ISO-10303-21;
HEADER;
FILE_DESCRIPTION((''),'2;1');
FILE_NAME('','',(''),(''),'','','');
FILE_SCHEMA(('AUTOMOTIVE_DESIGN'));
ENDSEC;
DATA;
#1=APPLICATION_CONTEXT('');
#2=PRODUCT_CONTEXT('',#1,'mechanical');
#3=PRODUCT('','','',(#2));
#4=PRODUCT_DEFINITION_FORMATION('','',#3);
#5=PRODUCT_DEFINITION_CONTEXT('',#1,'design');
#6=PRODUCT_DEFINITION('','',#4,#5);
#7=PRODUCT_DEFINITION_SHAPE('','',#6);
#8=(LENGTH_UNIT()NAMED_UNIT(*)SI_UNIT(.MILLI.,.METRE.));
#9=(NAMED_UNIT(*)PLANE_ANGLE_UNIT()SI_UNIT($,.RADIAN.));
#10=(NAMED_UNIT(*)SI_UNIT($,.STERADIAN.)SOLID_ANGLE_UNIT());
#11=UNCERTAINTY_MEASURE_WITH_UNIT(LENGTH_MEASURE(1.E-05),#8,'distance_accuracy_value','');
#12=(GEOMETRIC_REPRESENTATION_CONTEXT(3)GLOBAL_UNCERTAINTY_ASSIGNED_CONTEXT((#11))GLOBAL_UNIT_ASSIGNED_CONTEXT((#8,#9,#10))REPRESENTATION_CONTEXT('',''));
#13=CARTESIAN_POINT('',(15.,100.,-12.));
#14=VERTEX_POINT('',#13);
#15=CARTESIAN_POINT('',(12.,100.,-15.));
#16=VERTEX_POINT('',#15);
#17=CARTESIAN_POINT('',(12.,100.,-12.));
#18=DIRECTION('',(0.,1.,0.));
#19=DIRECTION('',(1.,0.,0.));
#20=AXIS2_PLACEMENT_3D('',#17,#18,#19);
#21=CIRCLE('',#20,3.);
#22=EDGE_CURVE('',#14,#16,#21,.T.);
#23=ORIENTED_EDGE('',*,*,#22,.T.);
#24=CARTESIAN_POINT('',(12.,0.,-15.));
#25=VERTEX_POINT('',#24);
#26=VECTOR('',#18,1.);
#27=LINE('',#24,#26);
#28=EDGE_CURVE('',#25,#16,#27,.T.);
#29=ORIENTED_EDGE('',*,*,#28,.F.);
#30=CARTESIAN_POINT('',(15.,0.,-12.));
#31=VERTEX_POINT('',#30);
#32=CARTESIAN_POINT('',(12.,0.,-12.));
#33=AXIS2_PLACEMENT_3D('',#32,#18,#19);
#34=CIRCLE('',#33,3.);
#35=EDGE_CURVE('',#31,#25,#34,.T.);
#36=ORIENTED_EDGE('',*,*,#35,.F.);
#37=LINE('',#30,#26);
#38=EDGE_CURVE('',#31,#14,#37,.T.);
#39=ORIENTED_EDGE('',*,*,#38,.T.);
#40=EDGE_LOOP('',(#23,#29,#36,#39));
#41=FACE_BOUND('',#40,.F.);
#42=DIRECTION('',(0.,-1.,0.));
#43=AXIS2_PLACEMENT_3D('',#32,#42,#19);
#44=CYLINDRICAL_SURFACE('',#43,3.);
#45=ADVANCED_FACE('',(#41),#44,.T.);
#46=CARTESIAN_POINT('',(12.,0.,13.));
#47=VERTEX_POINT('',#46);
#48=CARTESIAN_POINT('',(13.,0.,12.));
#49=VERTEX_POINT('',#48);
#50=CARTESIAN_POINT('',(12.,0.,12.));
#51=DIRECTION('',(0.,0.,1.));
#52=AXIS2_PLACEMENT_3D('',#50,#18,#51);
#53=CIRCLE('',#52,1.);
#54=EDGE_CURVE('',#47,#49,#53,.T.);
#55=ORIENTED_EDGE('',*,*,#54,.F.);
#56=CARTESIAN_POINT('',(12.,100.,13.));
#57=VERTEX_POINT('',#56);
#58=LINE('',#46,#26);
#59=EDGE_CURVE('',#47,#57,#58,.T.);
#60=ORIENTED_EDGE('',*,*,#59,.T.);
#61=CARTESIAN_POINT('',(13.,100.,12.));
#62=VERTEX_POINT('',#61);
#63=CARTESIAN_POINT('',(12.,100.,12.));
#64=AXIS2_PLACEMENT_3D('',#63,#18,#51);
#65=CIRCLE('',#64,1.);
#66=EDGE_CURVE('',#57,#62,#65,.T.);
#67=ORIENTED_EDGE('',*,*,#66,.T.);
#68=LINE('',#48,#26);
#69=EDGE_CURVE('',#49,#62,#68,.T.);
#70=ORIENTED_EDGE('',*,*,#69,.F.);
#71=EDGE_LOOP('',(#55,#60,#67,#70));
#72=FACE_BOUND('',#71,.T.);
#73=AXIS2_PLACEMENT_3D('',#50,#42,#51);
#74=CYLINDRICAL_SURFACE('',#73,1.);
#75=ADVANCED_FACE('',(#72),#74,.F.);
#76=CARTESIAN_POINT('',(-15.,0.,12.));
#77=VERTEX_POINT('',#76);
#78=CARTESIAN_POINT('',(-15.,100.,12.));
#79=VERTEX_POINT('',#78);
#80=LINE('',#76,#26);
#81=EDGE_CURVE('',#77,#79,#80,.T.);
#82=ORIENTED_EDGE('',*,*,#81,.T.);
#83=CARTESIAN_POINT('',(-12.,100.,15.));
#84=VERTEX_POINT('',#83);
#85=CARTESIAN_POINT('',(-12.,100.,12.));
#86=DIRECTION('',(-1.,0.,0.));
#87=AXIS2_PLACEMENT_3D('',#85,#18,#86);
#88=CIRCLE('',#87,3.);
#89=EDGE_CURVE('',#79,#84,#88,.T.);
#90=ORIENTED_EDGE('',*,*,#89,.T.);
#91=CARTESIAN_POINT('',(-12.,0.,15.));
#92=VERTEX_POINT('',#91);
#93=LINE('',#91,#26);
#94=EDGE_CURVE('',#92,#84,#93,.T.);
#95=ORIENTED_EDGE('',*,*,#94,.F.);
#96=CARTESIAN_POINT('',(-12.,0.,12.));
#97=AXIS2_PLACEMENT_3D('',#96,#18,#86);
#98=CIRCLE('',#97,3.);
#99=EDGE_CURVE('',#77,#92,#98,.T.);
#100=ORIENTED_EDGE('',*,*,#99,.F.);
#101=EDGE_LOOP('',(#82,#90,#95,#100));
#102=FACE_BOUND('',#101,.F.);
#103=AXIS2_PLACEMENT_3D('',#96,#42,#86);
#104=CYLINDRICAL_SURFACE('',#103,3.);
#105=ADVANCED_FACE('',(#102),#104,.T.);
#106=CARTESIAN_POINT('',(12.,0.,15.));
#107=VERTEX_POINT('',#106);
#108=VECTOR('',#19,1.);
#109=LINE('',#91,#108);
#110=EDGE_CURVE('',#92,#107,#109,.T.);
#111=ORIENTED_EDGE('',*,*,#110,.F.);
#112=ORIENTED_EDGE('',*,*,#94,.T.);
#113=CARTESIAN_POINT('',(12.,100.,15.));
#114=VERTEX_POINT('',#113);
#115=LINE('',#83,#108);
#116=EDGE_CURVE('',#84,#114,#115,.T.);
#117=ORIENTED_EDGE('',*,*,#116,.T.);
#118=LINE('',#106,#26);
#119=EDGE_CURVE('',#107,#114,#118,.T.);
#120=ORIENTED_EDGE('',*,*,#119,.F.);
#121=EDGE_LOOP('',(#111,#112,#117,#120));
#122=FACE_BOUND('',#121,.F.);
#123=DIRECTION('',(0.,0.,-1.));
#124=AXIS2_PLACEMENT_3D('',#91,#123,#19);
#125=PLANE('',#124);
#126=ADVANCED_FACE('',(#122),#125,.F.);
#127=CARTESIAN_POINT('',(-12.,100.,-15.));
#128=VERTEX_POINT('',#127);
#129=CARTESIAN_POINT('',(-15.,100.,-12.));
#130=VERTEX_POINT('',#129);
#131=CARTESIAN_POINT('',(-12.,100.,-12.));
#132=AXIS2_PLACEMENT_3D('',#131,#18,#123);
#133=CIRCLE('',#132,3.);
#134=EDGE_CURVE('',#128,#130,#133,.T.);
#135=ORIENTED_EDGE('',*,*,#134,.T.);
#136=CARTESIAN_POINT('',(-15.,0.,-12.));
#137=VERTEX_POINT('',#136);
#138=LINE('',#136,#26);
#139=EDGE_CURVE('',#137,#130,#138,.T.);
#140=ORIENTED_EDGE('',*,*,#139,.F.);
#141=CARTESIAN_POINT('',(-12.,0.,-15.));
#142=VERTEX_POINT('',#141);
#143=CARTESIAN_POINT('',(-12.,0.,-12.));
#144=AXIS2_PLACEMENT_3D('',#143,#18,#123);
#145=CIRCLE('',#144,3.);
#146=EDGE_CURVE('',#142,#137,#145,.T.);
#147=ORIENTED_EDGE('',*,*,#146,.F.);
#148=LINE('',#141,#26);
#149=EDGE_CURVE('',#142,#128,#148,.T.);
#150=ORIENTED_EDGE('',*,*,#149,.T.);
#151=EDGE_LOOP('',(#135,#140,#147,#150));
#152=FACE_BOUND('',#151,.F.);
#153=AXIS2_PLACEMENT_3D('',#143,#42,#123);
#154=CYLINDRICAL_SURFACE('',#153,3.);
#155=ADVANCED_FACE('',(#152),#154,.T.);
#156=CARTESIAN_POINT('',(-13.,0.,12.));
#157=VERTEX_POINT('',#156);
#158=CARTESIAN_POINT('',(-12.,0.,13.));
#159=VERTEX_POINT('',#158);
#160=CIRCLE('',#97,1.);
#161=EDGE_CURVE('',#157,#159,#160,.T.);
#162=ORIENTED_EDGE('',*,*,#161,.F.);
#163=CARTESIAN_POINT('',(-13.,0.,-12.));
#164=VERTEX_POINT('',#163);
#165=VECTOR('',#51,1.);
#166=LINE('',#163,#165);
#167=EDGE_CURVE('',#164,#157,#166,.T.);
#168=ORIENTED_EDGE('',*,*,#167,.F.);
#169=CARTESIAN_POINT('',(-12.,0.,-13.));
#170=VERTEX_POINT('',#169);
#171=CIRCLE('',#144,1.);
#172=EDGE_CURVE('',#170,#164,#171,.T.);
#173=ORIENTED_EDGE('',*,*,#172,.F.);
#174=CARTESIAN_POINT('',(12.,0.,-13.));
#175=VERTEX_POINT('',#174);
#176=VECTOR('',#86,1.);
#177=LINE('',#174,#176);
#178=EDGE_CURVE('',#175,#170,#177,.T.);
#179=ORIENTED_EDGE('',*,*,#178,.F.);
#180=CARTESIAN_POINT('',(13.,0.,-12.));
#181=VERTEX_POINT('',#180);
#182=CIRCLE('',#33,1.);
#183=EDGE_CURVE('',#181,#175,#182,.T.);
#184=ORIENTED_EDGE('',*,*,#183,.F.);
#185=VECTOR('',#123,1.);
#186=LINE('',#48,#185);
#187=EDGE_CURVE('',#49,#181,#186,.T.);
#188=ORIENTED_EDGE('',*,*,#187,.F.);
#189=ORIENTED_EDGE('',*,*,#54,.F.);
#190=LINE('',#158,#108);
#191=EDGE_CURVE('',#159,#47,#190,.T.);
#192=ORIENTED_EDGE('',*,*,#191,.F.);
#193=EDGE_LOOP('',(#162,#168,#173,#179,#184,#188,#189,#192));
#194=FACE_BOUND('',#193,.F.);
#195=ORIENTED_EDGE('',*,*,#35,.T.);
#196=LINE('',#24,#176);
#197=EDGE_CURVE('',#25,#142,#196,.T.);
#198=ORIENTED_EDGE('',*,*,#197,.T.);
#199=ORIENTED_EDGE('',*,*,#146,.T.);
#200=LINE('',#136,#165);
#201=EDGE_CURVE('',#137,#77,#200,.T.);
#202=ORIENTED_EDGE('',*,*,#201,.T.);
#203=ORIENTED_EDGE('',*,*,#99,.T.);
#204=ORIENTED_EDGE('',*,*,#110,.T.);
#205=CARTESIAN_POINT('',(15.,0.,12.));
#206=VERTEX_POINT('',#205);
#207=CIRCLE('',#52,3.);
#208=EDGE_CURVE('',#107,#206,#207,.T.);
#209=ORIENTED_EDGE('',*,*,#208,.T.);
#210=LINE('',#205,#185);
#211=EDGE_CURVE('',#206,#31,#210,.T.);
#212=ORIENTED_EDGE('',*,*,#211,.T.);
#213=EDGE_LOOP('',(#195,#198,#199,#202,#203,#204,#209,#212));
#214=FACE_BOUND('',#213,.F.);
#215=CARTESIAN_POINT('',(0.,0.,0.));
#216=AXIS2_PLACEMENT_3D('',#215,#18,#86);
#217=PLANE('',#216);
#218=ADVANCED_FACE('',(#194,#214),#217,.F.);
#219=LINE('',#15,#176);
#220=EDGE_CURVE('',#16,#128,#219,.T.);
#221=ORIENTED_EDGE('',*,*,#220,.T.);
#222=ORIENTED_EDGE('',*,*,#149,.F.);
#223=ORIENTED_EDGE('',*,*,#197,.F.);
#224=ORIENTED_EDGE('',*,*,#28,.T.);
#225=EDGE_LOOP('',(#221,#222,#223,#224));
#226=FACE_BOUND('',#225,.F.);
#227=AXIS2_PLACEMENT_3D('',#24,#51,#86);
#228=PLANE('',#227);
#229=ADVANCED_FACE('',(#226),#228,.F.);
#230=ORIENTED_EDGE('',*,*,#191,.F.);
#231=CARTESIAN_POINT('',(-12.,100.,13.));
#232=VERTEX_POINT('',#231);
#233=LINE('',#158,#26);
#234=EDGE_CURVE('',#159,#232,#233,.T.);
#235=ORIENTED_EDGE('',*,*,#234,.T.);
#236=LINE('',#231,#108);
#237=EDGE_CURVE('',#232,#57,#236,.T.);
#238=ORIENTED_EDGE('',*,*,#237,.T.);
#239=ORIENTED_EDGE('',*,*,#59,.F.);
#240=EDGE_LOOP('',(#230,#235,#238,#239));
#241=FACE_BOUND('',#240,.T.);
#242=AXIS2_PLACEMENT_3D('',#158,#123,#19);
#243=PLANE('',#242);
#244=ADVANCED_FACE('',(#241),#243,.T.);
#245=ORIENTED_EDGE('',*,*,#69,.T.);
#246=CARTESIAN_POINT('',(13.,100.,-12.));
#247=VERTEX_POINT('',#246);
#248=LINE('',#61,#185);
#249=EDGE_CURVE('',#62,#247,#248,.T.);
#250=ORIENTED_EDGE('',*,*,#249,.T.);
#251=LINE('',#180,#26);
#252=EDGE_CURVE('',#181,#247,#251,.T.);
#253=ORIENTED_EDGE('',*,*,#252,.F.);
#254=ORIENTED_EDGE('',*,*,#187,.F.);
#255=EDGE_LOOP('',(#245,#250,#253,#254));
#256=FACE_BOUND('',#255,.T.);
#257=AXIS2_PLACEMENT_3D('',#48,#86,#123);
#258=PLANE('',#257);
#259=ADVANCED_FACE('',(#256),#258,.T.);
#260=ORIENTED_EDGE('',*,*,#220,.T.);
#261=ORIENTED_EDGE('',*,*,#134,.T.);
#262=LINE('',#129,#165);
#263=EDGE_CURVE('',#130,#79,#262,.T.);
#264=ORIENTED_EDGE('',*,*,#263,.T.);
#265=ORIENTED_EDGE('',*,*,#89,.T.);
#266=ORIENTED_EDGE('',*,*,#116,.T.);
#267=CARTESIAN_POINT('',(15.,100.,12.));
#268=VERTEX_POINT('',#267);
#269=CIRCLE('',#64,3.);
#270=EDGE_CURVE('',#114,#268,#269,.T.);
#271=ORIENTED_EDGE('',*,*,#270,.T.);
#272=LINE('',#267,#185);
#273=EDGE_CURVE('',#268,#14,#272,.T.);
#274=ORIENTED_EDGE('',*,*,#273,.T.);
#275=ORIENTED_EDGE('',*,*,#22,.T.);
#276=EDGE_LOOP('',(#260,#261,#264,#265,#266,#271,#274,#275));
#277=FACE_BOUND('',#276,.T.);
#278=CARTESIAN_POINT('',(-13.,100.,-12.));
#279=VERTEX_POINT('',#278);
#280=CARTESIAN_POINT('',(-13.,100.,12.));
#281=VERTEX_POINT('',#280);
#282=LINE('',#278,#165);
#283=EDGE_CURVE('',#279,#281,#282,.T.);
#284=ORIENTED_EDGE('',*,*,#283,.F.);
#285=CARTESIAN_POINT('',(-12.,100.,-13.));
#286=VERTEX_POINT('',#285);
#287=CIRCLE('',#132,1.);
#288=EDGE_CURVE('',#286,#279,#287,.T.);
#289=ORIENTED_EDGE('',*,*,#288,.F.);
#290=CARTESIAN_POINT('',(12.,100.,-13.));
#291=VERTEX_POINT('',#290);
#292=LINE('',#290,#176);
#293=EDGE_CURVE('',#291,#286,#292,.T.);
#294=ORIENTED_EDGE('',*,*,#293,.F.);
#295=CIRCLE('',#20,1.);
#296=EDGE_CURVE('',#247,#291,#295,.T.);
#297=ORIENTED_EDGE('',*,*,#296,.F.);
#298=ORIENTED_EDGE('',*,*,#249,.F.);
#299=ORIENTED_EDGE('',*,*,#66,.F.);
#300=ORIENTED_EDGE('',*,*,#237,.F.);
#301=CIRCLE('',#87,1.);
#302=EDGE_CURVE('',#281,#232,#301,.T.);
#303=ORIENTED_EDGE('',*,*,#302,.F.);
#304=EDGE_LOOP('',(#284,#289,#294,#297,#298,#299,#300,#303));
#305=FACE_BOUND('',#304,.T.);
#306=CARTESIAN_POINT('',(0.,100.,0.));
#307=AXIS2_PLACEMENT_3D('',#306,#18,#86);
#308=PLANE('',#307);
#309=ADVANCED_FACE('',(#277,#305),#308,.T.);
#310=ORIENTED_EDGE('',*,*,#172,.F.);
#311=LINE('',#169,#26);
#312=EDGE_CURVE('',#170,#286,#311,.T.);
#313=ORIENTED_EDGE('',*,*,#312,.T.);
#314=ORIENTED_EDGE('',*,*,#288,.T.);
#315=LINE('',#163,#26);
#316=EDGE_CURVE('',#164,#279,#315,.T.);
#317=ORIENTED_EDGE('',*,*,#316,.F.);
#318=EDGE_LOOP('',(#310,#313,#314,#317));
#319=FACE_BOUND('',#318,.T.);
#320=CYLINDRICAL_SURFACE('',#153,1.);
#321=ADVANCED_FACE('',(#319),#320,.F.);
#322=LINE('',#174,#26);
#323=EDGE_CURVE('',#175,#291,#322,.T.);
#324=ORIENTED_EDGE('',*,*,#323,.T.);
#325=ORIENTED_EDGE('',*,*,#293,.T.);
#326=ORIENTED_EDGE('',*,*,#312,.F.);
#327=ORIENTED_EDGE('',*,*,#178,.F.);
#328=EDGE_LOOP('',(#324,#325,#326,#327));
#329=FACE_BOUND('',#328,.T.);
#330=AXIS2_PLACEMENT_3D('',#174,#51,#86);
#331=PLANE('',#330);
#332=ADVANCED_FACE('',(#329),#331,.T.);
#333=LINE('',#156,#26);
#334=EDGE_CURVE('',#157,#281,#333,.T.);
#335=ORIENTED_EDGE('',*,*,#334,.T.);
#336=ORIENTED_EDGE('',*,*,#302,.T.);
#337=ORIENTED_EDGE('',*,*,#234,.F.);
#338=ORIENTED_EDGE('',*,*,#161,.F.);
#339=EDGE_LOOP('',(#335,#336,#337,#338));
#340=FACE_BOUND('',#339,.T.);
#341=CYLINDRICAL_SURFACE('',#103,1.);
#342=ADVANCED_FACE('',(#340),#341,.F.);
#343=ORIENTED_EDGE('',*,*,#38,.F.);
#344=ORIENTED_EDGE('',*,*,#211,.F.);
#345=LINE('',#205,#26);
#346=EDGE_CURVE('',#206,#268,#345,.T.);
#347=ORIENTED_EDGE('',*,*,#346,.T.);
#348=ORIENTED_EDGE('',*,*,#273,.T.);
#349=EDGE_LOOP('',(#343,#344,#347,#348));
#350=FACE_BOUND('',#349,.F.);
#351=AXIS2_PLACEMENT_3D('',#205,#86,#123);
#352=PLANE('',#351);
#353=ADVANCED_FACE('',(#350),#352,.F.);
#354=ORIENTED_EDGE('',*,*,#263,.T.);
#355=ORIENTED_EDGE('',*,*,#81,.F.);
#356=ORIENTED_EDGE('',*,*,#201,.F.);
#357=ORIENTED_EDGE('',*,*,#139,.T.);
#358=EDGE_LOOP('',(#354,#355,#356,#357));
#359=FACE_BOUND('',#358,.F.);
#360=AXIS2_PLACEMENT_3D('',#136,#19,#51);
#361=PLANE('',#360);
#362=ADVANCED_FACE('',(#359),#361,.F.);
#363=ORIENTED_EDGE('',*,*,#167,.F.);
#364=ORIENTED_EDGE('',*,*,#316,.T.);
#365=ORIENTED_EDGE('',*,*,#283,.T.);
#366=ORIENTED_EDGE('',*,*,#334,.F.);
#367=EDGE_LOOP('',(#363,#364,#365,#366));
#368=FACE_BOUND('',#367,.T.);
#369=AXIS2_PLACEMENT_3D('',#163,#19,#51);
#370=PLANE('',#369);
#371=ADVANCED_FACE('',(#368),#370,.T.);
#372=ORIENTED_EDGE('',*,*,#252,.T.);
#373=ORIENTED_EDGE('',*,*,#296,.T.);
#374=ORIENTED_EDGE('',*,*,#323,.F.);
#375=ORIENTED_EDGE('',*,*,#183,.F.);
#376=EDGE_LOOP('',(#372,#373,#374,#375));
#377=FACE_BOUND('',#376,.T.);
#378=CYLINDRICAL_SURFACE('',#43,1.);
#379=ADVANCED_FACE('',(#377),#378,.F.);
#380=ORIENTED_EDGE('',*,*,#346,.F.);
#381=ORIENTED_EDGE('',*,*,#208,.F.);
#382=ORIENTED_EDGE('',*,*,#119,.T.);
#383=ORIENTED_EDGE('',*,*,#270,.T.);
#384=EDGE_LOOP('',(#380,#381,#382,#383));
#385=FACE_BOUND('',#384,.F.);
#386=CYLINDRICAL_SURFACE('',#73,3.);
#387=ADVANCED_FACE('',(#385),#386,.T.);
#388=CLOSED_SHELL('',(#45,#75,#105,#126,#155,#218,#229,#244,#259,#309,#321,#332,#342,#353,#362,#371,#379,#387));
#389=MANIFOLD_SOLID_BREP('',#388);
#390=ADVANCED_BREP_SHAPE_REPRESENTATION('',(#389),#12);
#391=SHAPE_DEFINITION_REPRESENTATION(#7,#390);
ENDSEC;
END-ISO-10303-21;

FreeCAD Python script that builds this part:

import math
import FreeCAD as App
import Part
import Sketcher

V = App.Vector

doc = App.newDocument("Part")
params = doc.addObject("Spreadsheet::Sheet", "Params")
for row, (alias, value) in enumerate([
    ("sketch1_radius", "1 mm"),
    ("sketch1_radius2", "3 mm"),
    ("sketch1_width", "24 mm"),
    ("pad1_length", "100 mm"),
], start=1):
    params.set(f"A{row}", alias)
    params.set(f"B{row}", "=" + value)
    params.setAlias(f"B{row}", alias)

body = doc.addObject("PartDesign::Body", "Body")

sketch1 = doc.addObject("Sketcher::SketchObject", "Sketch")
body.addObject(sketch1)
sketch1.AttachmentSupport = (doc.XZ_Plane, [""])
sketch1.MapMode = "FlatFace"
sketch1.addGeometry(Part.ArcOfCircle(Part.Circle(V(12, -12, 0), V(0, 0, 1), 3), math.radians(-90), math.radians(0)), False)
sketch1.addGeometry(Part.LineSegment(V(12, -15, 0), V(-12, -15, 0)), False)
sketch1.addGeometry(Part.ArcOfCircle(Part.Circle(V(-12, -12, 0), V(0, 0, 1), 3), math.radians(180), math.radians(270)), False)
sketch1.addGeometry(Part.LineSegment(V(-15, -12, 0), V(-15, 12, 0)), False)
sketch1.addGeometry(Part.ArcOfCircle(Part.Circle(V(-12, 12, 0), V(0, 0, 1), 3), math.radians(90), math.radians(180)), False)
sketch1.addGeometry(Part.LineSegment(V(-12, 15, 0), V(12, 15, 0)), False)
sketch1.addGeometry(Part.ArcOfCircle(Part.Circle(V(12, 12, 0), V(0, 0, 1), 3), math.radians(0), math.radians(90)), False)
sketch1.addGeometry(Part.LineSegment(V(15, 12, 0), V(15, -12, 0)), False)
sketch1.addGeometry(Part.LineSegment(V(-13, 12, 0), V(-13, -12, 0)), False)
sketch1.addGeometry(Part.ArcOfCircle(Part.Circle(V(-12, -12, 0), V(0, 0, 1), 1), math.radians(180), math.radians(270)), False)
sketch1.addGeometry(Part.LineSegment(V(-12, -13, 0), V(12, -13, 0)), False)
sketch1.addGeometry(Part.ArcOfCircle(Part.Circle(V(12, -12, 0), V(0, 0, 1), 1), math.radians(-90), math.radians(0)), False)
sketch1.addGeometry(Part.LineSegment(V(13, -12, 0), V(13, 12, 0)), False)
sketch1.addGeometry(Part.ArcOfCircle(Part.Circle(V(12, 12, 0), V(0, 0, 1), 1), math.radians(0), math.radians(90)), False)
sketch1.addGeometry(Part.LineSegment(V(12, 13, 0), V(-12, 13, 0)), False)
sketch1.addGeometry(Part.ArcOfCircle(Part.Circle(V(-12, 12, 0), V(0, 0, 1), 1), math.radians(90), math.radians(180)), False)
sketch1.addConstraint(Sketcher.Constraint("Tangent", 0, 1, 1, 1))
sketch1.addConstraint(Sketcher.Constraint("Tangent", 1, 2, 2, 2))
sketch1.addConstraint(Sketcher.Constraint("Tangent", 2, 1, 3, 1))
sketch1.addConstraint(Sketcher.Constraint("Tangent", 3, 2, 4, 2))
sketch1.addConstraint(Sketcher.Constraint("Tangent", 4, 1, 5, 1))
sketch1.addConstraint(Sketcher.Constraint("Tangent", 5, 2, 6, 2))
sketch1.addConstraint(Sketcher.Constraint("Tangent", 6, 1, 7, 1))
sketch1.addConstraint(Sketcher.Constraint("Tangent", 7, 2, 0, 2))
sketch1.addConstraint(Sketcher.Constraint("Tangent", 8, 2, 9, 1))
sketch1.addConstraint(Sketcher.Constraint("Tangent", 9, 2, 10, 1))
sketch1.addConstraint(Sketcher.Constraint("Tangent", 10, 2, 11, 1))
sketch1.addConstraint(Sketcher.Constraint("Tangent", 11, 2, 12, 1))
sketch1.addConstraint(Sketcher.Constraint("Tangent", 12, 2, 13, 1))
sketch1.addConstraint(Sketcher.Constraint("Tangent", 13, 2, 14, 1))
sketch1.addConstraint(Sketcher.Constraint("Tangent", 14, 2, 15, 1))
sketch1.addConstraint(Sketcher.Constraint("Tangent", 15, 2, 8, 1))
sketch1.addConstraint(Sketcher.Constraint("Horizontal", 1))
sketch1.addConstraint(Sketcher.Constraint("Vertical", 3))
sketch1.addConstraint(Sketcher.Constraint("Horizontal", 5))
sketch1.addConstraint(Sketcher.Constraint("Vertical", 7))
sketch1.addConstraint(Sketcher.Constraint("Vertical", 8))
sketch1.addConstraint(Sketcher.Constraint("Horizontal", 10))
sketch1.addConstraint(Sketcher.Constraint("Vertical", 12))
sketch1.addConstraint(Sketcher.Constraint("Horizontal", 14))
sketch1.addConstraint(Sketcher.Constraint("Coincident", 9, 3, 2, 3))
sketch1.addConstraint(Sketcher.Constraint("Coincident", 11, 3, 0, 3))
sketch1.addConstraint(Sketcher.Constraint("Coincident", 13, 3, 6, 3))
sketch1.addConstraint(Sketcher.Constraint("Equal", 0, 2))
sketch1.addConstraint(Sketcher.Constraint("Equal", 2, 4))
sketch1.addConstraint(Sketcher.Constraint("Equal", 4, 6))
sketch1.addConstraint(Sketcher.Constraint("Equal", 13, 15))
sketch1.addConstraint(Sketcher.Constraint("Symmetric", 0, 3, 4, 3, -1, 1))
sketch1.addConstraint(Sketcher.Constraint("Equal", 14, 3))
sketch1.addConstraint(Sketcher.Constraint("Radius", 9, 1.0))
sketch1.addConstraint(Sketcher.Constraint("Radius", 0, 3.0))
sketch1.addConstraint(Sketcher.Constraint("DistanceX", 1, 2, 1, 1, 24.0))
sketch1.setExpression("Constraints[33]", "Params.sketch1_radius")
sketch1.setExpression("Constraints[34]", "Params.sketch1_radius2")
sketch1.setExpression("Constraints[35]", "Params.sketch1_width")
pad1 = doc.addObject("PartDesign::Pad", "Pad")
body.addObject(pad1)
pad1.Profile = sketch1
pad1.setExpression("Length", "Params.pad1_length")
pad1.Reversed = True

doc.recompute()
